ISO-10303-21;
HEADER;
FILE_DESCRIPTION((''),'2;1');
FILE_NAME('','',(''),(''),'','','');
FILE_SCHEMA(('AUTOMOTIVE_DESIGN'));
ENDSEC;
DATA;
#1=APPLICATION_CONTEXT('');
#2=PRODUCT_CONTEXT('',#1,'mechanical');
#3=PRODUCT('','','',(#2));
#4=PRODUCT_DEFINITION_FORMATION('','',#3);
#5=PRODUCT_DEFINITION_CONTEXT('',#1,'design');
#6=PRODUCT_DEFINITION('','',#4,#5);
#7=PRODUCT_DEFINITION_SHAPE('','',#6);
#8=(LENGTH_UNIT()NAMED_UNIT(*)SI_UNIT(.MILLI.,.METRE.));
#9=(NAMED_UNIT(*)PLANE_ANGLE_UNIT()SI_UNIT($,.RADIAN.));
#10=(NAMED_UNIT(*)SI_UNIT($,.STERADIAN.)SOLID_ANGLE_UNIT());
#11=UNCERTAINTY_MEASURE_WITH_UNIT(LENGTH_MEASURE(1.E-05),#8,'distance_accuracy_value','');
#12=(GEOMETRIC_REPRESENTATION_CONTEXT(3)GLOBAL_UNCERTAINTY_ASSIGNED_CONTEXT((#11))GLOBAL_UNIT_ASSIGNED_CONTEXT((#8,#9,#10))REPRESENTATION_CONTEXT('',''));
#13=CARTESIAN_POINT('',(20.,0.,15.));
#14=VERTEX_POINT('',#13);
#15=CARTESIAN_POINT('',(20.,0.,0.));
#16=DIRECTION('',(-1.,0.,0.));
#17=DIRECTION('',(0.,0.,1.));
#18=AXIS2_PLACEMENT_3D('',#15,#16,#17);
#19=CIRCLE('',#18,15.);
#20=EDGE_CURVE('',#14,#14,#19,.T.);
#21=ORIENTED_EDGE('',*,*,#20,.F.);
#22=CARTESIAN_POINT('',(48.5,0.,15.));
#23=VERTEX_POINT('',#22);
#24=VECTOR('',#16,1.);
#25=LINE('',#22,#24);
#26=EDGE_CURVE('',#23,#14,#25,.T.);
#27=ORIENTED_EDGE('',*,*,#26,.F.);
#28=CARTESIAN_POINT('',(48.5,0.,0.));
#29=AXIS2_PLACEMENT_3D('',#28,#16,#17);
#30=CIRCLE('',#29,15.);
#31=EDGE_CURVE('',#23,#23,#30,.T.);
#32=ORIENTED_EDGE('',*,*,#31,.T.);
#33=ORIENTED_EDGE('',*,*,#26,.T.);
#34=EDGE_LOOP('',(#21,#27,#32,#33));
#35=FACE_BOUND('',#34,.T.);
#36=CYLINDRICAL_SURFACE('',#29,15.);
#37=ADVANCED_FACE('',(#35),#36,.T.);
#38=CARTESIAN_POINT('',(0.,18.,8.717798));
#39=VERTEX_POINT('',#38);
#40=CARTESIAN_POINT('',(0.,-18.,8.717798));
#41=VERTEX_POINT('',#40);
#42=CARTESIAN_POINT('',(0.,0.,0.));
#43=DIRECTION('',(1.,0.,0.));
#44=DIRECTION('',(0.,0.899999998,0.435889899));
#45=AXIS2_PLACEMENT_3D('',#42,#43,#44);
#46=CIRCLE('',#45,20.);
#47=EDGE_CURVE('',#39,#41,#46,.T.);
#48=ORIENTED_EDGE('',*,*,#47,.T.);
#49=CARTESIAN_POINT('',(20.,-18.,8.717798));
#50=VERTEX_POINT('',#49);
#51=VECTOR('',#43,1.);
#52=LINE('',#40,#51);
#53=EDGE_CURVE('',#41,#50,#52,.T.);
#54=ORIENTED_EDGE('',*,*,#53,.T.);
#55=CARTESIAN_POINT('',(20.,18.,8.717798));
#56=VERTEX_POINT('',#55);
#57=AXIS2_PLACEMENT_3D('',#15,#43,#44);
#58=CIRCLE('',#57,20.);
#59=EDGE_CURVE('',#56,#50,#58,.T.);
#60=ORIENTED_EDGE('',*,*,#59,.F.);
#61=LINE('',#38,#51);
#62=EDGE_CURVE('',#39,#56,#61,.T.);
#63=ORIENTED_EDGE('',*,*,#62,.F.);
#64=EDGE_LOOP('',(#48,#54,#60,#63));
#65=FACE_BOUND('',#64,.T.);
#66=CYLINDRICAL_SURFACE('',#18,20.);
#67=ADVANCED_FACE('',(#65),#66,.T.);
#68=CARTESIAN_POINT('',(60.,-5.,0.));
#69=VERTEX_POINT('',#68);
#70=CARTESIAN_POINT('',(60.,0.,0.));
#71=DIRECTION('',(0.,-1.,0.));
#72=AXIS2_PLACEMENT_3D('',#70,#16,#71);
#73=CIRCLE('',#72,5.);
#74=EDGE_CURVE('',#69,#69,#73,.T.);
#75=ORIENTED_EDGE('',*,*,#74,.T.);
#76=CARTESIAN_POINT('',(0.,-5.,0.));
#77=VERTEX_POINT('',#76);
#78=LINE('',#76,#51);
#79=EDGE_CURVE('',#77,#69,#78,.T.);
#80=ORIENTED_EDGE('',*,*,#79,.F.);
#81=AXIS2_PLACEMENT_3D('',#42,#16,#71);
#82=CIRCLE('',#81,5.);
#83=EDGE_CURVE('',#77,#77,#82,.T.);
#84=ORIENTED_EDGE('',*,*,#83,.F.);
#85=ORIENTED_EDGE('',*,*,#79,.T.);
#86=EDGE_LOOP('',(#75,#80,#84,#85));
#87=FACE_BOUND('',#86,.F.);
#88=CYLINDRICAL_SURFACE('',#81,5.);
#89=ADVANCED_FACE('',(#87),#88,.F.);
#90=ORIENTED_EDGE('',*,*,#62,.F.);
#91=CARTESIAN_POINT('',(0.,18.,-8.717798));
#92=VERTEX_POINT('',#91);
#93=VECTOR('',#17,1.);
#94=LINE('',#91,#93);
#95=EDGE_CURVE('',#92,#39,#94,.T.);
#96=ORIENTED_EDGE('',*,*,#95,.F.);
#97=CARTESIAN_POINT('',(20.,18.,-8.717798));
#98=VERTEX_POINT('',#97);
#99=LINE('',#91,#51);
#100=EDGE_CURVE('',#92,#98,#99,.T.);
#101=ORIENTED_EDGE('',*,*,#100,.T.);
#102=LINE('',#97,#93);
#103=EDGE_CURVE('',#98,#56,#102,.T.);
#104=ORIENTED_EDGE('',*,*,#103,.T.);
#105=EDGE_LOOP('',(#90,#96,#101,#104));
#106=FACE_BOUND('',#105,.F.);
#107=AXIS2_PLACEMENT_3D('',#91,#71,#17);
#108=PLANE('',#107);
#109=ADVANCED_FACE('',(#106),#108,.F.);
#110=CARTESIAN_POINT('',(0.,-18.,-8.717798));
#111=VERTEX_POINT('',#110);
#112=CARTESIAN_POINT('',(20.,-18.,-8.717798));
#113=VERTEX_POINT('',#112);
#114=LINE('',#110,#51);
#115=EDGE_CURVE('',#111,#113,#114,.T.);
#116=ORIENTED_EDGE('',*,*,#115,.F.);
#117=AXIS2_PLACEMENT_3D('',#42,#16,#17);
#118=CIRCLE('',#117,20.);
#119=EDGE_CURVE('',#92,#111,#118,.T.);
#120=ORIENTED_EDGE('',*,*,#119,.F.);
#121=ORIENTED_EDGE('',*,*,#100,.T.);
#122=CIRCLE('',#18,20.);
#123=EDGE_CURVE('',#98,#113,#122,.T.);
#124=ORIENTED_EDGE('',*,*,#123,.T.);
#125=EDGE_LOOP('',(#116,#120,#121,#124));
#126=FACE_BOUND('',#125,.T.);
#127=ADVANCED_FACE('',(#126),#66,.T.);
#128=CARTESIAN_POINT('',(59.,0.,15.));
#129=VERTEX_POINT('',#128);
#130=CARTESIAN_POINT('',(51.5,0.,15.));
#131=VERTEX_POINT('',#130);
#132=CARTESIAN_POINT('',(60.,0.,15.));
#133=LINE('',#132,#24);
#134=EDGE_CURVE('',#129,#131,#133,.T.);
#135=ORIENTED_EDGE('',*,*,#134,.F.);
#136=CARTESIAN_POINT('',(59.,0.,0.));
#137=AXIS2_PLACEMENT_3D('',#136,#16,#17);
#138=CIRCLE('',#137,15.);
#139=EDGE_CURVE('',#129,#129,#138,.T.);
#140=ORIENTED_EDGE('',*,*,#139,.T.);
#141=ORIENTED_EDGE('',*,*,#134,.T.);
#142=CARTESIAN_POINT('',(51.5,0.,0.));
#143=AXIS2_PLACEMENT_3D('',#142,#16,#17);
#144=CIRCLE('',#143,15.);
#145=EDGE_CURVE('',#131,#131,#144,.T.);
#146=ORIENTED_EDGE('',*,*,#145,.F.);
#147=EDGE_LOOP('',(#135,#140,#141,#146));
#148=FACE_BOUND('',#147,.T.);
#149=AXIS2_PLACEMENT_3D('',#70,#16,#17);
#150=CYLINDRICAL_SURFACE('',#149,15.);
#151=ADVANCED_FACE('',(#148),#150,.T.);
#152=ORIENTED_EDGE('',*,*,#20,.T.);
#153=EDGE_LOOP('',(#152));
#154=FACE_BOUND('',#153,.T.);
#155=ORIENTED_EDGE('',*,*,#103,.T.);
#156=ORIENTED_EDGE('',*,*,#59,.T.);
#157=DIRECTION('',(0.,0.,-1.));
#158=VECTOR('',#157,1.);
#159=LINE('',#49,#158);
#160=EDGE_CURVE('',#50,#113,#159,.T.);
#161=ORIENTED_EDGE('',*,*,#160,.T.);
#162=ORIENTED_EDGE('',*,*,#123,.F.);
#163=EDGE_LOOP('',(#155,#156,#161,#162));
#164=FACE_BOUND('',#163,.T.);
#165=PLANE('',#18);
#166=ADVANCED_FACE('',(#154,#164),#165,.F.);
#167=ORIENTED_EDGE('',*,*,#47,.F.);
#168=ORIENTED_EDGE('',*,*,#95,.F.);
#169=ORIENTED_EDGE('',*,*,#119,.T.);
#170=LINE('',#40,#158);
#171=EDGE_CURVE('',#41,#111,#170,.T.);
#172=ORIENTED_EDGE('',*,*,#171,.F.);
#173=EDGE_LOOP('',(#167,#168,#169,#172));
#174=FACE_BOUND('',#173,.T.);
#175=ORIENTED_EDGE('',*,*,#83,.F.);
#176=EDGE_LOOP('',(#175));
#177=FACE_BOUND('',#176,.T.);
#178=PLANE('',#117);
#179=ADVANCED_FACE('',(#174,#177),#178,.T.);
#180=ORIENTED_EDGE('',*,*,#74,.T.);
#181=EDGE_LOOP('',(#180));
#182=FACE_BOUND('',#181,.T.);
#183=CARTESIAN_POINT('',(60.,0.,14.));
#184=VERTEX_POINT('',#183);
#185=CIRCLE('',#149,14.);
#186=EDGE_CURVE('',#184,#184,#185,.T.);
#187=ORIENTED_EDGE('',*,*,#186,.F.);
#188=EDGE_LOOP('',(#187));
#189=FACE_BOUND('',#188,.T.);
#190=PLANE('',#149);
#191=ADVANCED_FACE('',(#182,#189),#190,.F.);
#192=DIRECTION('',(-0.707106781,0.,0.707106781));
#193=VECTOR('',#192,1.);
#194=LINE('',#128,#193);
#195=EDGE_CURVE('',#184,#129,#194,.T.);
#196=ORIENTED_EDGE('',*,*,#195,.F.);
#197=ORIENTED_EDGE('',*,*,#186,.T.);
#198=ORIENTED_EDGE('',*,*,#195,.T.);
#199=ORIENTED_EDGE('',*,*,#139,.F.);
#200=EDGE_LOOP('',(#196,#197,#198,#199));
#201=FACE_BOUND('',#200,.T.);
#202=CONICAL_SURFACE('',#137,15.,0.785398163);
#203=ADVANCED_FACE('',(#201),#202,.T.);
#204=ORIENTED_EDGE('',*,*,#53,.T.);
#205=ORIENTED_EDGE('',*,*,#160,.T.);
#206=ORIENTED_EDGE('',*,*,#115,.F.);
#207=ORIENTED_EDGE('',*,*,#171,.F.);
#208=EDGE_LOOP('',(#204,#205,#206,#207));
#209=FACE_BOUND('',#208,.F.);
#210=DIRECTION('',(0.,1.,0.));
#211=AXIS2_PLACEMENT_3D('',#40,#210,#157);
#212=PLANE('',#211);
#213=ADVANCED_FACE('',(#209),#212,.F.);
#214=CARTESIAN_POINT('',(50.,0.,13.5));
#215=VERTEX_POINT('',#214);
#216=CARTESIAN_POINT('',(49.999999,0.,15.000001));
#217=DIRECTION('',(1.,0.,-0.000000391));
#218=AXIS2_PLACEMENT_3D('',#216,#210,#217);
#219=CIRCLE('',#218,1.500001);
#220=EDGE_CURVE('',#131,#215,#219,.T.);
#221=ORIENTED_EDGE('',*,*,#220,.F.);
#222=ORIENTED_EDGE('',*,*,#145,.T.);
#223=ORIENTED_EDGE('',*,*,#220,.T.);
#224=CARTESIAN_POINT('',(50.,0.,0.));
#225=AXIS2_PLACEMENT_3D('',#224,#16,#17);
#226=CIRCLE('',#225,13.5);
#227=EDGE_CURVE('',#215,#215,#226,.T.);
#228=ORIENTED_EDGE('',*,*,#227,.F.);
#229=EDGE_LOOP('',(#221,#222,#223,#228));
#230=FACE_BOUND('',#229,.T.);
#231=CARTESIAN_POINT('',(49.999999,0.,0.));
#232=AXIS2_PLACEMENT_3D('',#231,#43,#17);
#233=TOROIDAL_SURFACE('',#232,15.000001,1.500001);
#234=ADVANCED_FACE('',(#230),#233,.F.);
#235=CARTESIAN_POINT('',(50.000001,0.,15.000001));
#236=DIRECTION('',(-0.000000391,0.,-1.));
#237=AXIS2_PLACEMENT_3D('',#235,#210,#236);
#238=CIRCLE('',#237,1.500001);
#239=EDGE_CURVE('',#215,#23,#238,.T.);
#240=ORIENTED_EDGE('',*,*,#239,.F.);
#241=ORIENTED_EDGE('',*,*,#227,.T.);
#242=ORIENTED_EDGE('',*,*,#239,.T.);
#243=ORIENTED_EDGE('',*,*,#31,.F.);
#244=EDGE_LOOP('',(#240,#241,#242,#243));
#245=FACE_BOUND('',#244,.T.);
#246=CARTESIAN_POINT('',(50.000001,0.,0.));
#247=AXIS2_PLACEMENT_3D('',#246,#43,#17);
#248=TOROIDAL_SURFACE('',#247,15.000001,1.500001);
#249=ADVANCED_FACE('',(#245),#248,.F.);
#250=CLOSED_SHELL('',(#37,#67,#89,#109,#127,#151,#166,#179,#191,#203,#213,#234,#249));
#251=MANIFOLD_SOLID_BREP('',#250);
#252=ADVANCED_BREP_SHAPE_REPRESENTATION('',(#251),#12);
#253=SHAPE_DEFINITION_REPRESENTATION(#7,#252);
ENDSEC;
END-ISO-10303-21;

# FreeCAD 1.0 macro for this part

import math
import FreeCAD as App
import Part
import Sketcher

V = App.Vector


def edges_at(feature, points):
    """Names of the edges that pass closest to the given points."""
    edges = feature.Shape.Edges
    near = lambda p: min(range(len(edges)), key=lambda i: edges[i].distToShape(Part.Vertex(*p))[0])
    return sorted({f"Edge{near(p) + 1}" for p in points})

doc = App.newDocument("Part")
body = doc.addObject("PartDesign::Body", "Body")

sketch1 = body.newObject("Sketcher::SketchObject", "Sketch")
sketch1.AttachmentSupport = (doc.getObject("XZ_Plane"), [""])
sketch1.MapMode = "FlatFace"
sketch1.addGeometry(Part.LineSegment(V(0, 20, 0), V(0, 0, 0)), False)
sketch1.addGeometry(Part.LineSegment(V(0, 0, 0), V(60, 0, 0)), False)
sketch1.addGeometry(Part.LineSegment(V(60, 0, 0), V(60, 15, 0)), False)
sketch1.addGeometry(Part.LineSegment(V(60, 15, 0), V(51.5, 15, 0)), False)
sketch1.addGeometry(Part.ArcOfCircle(Part.Circle(V(49.999999, 15.000001, 0), V(0, 0, 1), 1.500001), math.radians(-89.999978), math.radians(-0.000022)), False)
sketch1.addGeometry(Part.ArcOfCircle(Part.Circle(V(50.000001, 15.000001, 0), V(0, 0, 1), 1.500001), math.radians(-179.999978), math.radians(-90.000022)), False)
sketch1.addGeometry(Part.LineSegment(V(48.5, 15, 0), V(20, 15, 0)), False)
sketch1.addGeometry(Part.LineSegment(V(20, 15, 0), V(20, 20, 0)), False)
sketch1.addGeometry(Part.LineSegment(V(20, 20, 0), V(0, 20, 0)), False)
sketch1.addConstraint(Sketcher.Constraint("Coincident", 0, 2, 1, 1))
sketch1.addConstraint(Sketcher.Constraint("Coincident", 1, 2, 2, 1))
sketch1.addConstraint(Sketcher.Constraint("Coincident", 2, 2, 3, 1))
sketch1.addConstraint(Sketcher.Constraint("Coincident", 3, 2, 4, 2))
sketch1.addConstraint(Sketcher.Constraint("Tangent", 4, 1, 5, 2))
sketch1.addConstraint(Sketcher.Constraint("Coincident", 5, 1, 6, 1))
sketch1.addConstraint(Sketcher.Constraint("Coincident", 6, 2, 7, 1))
sketch1.addConstraint(Sketcher.Constraint("Coincident", 7, 2, 8, 1))
sketch1.addConstraint(Sketcher.Constraint("Coincident", 8, 2, 0, 1))
sketch1.addConstraint(Sketcher.Constraint("Vertical", 0))
sketch1.addConstraint(Sketcher.Constraint("Horizontal", 1))
sketch1.addConstraint(Sketcher.Constraint("Vertical", 2))
sketch1.addConstraint(Sketcher.Constraint("Horizontal", 3))
sketch1.addConstraint(Sketcher.Constraint("Horizontal", 6))
sketch1.addConstraint(Sketcher.Constraint("Vertical", 7))
sketch1.addConstraint(Sketcher.Constraint("Horizontal", 8))
sketch1.addConstraint(Sketcher.Constraint("Coincident", 0, 2, -1, 1))
sketch1.addConstraint(Sketcher.Constraint("Equal", 4, 5))
sketch1.addConstraint(Sketcher.Constraint("Horizontal", 5, 3, 2, 2))
sketch1.addConstraint(Sketcher.Constraint("Horizontal", 3, 2, 5, 1))
sketch1.addConstraint(Sketcher.Constraint("Vertical", 5, 3, 4, 1))
sketch1.addConstraint(Sketcher.Constraint("Equal", 8, 0))
sketch1.addConstraint(Sketcher.Constraint("Radius", 4, 1.500001))
sketch1.addConstraint(Sketcher.Constraint("DistanceX", 1, 1, 1, 2, 60.0))
sketch1.addConstraint(Sketcher.Constraint("DistanceX", 8, 2, 8, 1, 20.0))
sketch1.addConstraint(Sketcher.Constraint("DistanceY", 2, 1, 2, 2, 15.0))
sketch1.addConstraint(Sketcher.Constraint("DistanceX", 3, 2, 3, 1, 8.5))
revolution = body.newObject("PartDesign::Revolution", "Revolution")
revolution.Profile = sketch1
revolution.ReferenceAxis = (sketch1, ["H_Axis"])
revolution.Angle = 360
doc.recompute()

chamfer = body.newObject("PartDesign::Chamfer", "Chamfer")
chamfer.Base = (revolution, edges_at(revolution, [(60, 0, -15)]))
chamfer.Size = 1

sketch2 = body.newObject("Sketcher::SketchObject", "Sketch001")
sketch2.AttachmentSupport = (doc.getObject("YZ_Plane"), [""])
sketch2.MapMode = "FlatFace"
sketch2.addGeometry(Part.LineSegment(V(18, -8.717798, 0), V(18, 8.717798, 0)), False)
sketch2.addGeometry(Part.ArcOfCircle(Part.Circle(V(0, 0, 0), V(0, 0, 1), 20), math.radians(-25.841932), math.radians(25.841932)), False)
sketch2.addGeometry(Part.ArcOfCircle(Part.Circle(V(-0.000011, 0.000003, 0), V(0, 0, 1), 19.999989), math.radians(154.15806), math.radians(180.000008)), False)
sketch2.addGeometry(Part.LineSegment(V(-18, 8.717798, 0), V(-18, -8.717798, 0)), False)
sketch2.addGeometry(Part.ArcOfCircle(Part.Circle(V(-0.000011, -0.000003, 0), V(0, 0, 1), 19.999989), math.radians(179.999992), math.radians(205.84194)), False)
sketch2.addConstraint(Sketcher.Constraint("Coincident", 0, 1, 1, 1))
sketch2.addConstraint(Sketcher.Constraint("Coincident", 1, 2, 0, 2))
sketch2.addConstraint(Sketcher.Constraint("Coincident", 2, 1, 3, 1))
sketch2.addConstraint(Sketcher.Constraint("Coincident", 3, 2, 4, 2))
sketch2.addConstraint(Sketcher.Constraint("Tangent", 4, 1, 2, 2))
sketch2.addConstraint(Sketcher.Constraint("Vertical", 0))
sketch2.addConstraint(Sketcher.Constraint("Vertical", 3))
sketch2.addConstraint(Sketcher.Constraint("Coincident", 1, 3, -1, 1))
sketch2.addConstraint(Sketcher.Constraint("Equal", 2, 4))
sketch2.addConstraint(Sketcher.Constraint("Symmetric", 0, 1, 2, 1, -1, 1))
sketch2.addConstraint(Sketcher.Constraint("PointOnObject", 4, 1, -1))
sketch2.addConstraint(Sketcher.Constraint("Horizontal", 0, 1, 3, 2))
sketch2.addConstraint(Sketcher.Constraint("Radius", 1, 20.0))
sketch2.addConstraint(Sketcher.Constraint("DistanceX", -1, 1, 0, 1, 18.0))
sketch2.addConstraint(Sketcher.Constraint("DistanceX", 4, 1, -1, 1, 20.0))
pocket1 = body.newObject("PartDesign::Pocket", "Pocket")
pocket1.Profile = sketch2
pocket1.Type = "ThroughAll"
pocket1.Reversed = True

sketch3 = body.newObject("Sketcher::SketchObject", "Sketch002")
sketch3.AttachmentSupport = (doc.getObject("YZ_Plane"), [""])
sketch3.MapMode = "FlatFace"
sketch3.addGeometry(Part.Circle(V(0, 0, 0), V(0, 0, 1), 5), False)
sketch3.addConstraint(Sketcher.Constraint("Coincident", 0, 3, -1, 1))
sketch3.addConstraint(Sketcher.Constraint("Diameter", 0, 10.0))
pocket2 = body.newObject("PartDesign::Pocket", "Pocket001")
pocket2.Profile = sketch3
pocket2.Type = "ThroughAll"
pocket2.Reversed = True

doc.recompute()
